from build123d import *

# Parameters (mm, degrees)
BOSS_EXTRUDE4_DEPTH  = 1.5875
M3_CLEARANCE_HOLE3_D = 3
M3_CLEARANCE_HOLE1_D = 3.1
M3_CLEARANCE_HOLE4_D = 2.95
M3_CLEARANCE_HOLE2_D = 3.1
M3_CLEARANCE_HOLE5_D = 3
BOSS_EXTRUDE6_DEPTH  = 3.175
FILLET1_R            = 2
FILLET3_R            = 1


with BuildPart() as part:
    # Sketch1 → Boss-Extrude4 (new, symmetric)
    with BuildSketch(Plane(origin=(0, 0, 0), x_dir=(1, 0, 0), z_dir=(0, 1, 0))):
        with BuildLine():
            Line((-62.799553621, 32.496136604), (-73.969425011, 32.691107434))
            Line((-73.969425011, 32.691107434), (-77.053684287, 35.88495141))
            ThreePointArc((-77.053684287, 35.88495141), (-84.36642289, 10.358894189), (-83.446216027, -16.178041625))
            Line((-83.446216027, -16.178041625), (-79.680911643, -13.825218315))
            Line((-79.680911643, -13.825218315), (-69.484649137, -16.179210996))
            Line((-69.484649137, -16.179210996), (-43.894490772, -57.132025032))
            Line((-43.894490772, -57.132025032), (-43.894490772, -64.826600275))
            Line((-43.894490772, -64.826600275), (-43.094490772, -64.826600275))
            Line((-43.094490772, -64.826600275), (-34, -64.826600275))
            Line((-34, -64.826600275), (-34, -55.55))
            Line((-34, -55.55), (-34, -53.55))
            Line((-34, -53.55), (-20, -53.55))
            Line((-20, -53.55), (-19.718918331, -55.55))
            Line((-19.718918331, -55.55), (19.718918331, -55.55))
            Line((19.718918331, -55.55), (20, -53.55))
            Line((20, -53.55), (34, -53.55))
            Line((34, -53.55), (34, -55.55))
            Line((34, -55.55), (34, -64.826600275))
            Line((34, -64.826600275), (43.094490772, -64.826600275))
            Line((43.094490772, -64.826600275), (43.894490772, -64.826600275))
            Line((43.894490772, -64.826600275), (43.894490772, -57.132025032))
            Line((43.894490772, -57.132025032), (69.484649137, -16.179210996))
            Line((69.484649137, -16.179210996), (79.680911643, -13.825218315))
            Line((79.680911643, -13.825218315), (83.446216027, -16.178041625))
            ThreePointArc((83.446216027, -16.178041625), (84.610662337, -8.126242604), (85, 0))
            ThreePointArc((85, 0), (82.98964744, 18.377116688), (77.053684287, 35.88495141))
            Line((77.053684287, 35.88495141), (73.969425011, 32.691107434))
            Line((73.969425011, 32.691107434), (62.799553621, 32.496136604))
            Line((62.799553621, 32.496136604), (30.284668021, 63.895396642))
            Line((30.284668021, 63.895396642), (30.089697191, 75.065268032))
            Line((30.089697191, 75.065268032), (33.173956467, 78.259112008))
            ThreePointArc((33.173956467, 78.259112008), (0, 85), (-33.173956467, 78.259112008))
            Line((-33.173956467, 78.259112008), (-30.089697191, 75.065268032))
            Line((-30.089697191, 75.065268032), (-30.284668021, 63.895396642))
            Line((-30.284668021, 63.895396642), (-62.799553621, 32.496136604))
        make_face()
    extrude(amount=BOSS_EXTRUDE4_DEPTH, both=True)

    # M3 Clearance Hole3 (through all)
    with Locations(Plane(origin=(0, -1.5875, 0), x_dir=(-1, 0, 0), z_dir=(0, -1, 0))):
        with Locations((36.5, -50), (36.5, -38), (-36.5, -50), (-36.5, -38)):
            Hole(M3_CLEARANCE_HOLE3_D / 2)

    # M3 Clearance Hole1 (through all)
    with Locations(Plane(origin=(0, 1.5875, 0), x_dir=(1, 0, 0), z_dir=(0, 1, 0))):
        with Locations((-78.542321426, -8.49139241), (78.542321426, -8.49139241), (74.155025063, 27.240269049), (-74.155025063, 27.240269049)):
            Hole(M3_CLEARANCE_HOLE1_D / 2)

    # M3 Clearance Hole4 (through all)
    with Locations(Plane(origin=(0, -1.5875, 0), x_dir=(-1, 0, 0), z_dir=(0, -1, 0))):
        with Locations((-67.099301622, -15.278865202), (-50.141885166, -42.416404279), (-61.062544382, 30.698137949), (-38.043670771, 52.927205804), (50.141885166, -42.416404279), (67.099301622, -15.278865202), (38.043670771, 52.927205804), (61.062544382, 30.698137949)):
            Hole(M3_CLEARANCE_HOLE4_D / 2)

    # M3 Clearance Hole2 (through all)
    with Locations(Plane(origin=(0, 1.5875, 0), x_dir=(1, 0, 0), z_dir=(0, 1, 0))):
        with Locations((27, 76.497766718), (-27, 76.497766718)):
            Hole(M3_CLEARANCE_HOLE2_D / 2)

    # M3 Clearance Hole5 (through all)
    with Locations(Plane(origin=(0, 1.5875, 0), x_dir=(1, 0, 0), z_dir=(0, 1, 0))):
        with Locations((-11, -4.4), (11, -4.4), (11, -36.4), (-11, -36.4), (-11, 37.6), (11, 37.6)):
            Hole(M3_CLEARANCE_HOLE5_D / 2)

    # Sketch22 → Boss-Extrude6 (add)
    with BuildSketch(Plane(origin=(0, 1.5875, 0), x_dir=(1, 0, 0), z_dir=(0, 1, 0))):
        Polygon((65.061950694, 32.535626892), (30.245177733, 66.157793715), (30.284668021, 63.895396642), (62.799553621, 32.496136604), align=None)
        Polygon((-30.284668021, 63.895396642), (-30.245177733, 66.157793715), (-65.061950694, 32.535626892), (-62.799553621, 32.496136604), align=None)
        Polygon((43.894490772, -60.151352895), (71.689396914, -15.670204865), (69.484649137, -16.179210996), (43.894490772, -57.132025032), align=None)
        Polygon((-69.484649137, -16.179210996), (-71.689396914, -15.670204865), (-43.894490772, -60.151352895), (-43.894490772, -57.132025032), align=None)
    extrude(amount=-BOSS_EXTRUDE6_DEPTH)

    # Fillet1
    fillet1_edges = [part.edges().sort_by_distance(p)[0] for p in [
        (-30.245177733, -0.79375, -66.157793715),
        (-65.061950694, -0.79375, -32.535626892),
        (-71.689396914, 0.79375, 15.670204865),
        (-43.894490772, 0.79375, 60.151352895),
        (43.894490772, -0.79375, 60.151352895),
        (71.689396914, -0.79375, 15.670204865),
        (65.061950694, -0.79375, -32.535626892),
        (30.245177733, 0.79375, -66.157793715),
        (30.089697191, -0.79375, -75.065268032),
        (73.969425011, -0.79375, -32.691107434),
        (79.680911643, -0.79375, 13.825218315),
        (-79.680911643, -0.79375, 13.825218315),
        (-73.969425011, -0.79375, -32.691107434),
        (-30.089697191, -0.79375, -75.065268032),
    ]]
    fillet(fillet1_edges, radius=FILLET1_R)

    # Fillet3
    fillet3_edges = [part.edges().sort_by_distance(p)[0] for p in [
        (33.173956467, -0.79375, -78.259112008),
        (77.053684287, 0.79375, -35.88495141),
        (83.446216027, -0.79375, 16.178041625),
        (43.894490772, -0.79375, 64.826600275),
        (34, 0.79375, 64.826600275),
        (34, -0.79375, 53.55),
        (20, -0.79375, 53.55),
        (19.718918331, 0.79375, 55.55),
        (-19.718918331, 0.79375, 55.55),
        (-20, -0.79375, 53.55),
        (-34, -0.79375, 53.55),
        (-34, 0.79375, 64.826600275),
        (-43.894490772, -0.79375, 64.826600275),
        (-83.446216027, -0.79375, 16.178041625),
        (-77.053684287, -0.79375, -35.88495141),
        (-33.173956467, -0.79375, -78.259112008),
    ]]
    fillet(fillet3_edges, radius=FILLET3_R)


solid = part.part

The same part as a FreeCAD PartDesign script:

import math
import FreeCAD as App
import Part
import Sketcher
Q = App.Units.Quantity


def edges_at(feature, points):
    """Names of the edges that pass closest to the given points."""
    edges = feature.Shape.Edges
    near = lambda p: min(range(len(edges)), key=lambda i: edges[i].distToShape(Part.Vertex(*p))[0])
    return sorted({f"Edge{near(p) + 1}" for p in points})

doc = App.newDocument("Part")
body = doc.addObject("PartDesign::Body", "Body")

sketch1 = body.newObject("Sketcher::SketchObject", "Sketch")
sketch1.AttachmentSupport = (doc.getObject("XZ_Plane"), [""])
sketch1.MapMode = "FlatFace"
sketch1.addGeometry([
    Part.LineSegment(App.Vector(-62.8, -32.5, 0), App.Vector(-74, -32.7, 0)),
    Part.LineSegment(App.Vector(-74, -32.7, 0), App.Vector(-77.1, -35.9, 0)),
    Part.ArcOfCircle(Part.Circle(App.Vector(0, 0, 0), App.Vector(0, 0, 1), 85), math.radians(169), math.radians(205)),
    Part.LineSegment(App.Vector(-83.4, 16.2, 0), App.Vector(-79.7, 13.8, 0)),
    Part.LineSegment(App.Vector(-79.7, 13.8, 0), App.Vector(-69.5, 16.2, 0)),
    Part.LineSegment(App.Vector(-69.5, 16.2, 0), App.Vector(-43.9, 57.1, 0)),
    Part.LineSegment(App.Vector(-43.9, 57.1, 0), App.Vector(-43.9, 64.8, 0)),
    Part.LineSegment(App.Vector(-43.9, 64.8, 0), App.Vector(-34, 64.8, 0)),
    Part.LineSegment(App.Vector(-34, 64.8, 0), App.Vector(-34, 53.5, 0)),
    Part.LineSegment(App.Vector(-34, 53.5, 0), App.Vector(-20, 53.5, 0)),
    Part.LineSegment(App.Vector(-20, 53.5, 0), App.Vector(-19.7, 55.5, 0)),
    Part.LineSegment(App.Vector(-19.7, 55.5, 0), App.Vector(19.7, 55.5, 0)),
    Part.LineSegment(App.Vector(19.7, 55.5, 0), App.Vector(20, 53.5, 0)),
    Part.LineSegment(App.Vector(20, 53.5, 0), App.Vector(34, 53.5, 0)),
    Part.LineSegment(App.Vector(34, 53.5, 0), App.Vector(34, 64.8, 0)),
    Part.LineSegment(App.Vector(34, 64.8, 0), App.Vector(43.9, 64.8, 0)),
    Part.LineSegment(App.Vector(43.9, 64.8, 0), App.Vector(43.9, 57.1, 0)),
    Part.LineSegment(App.Vector(43.9, 57.1, 0), App.Vector(69.5, 16.2, 0)),
    Part.LineSegment(App.Vector(69.5, 16.2, 0), App.Vector(79.7, 13.8, 0)),
    Part.LineSegment(App.Vector(79.7, 13.8, 0), App.Vector(83.4, 16.2, 0)),
    Part.ArcOfCircle(Part.Circle(App.Vector(0, 0, 0), App.Vector(0, 0, 1), 85), math.radians(0), math.radians(10.97)),
    Part.ArcOfCircle(Part.Circle(App.Vector(0, 0, 0), App.Vector(0, 0, 1), 85), math.radians(-25), math.radians(0)),
    Part.LineSegment(App.Vector(77.1, -35.9, 0), App.Vector(74, -32.7, 0)),
    Part.LineSegment(App.Vector(74, -32.7, 0), App.Vector(62.8, -32.5, 0)),
    Part.LineSegment(App.Vector(62.8, -32.5, 0), App.Vector(30.3, -63.9, 0)),
    Part.LineSegment(App.Vector(30.3, -63.9, 0), App.Vector(30.1, -75.1, 0)),
    Part.LineSegment(App.Vector(30.1, -75.1, 0), App.Vector(33.2, -78.3, 0)),
    Part.ArcOfCircle(Part.Circle(App.Vector(0, 0, 0), App.Vector(0, 0, 1), 85), math.radians(-113), math.radians(-67)),
    Part.LineSegment(App.Vector(-33.2, -78.3, 0), App.Vector(-30.1, -75.1, 0)),
    Part.LineSegment(App.Vector(-30.1, -75.1, 0), App.Vector(-30.3, -63.9, 0)),
    Part.LineSegment(App.Vector(-30.3, -63.9, 0), App.Vector(-62.8, -32.5, 0)),
], False)
sketch1.addConstraint([
    Sketcher.Constraint("Coincident", 0, 2, 1, 1),
    Sketcher.Constraint("Coincident", 1, 2, 2, 2),
    Sketcher.Constraint("Coincident", 2, 1, 3, 1),
    Sketcher.Constraint("Coincident", 3, 2, 4, 1),
    Sketcher.Constraint("Coincident", 4, 2, 5, 1),
    Sketcher.Constraint("Coincident", 5, 2, 6, 1),
    Sketcher.Constraint("Coincident", 6, 2, 7, 1),
    Sketcher.Constraint("Coincident", 7, 2, 8, 1),
    Sketcher.Constraint("Coincident", 8, 2, 9, 1),
    Sketcher.Constraint("Coincident", 9, 2, 10, 1),
    Sketcher.Constraint("Coincident", 10, 2, 11, 1),
    Sketcher.Constraint("Coincident", 11, 2, 12, 1),
    Sketcher.Constraint("Coincident", 12, 2, 13, 1),
    Sketcher.Constraint("Coincident", 13, 2, 14, 1),
    Sketcher.Constraint("Coincident", 14, 2, 15, 1),
    Sketcher.Constraint("Coincident", 15, 2, 16, 1),
    Sketcher.Constraint("Coincident", 16, 2, 17, 1),
    Sketcher.Constraint("Coincident", 17, 2, 18, 1),
    Sketcher.Constraint("Coincident", 18, 2, 19, 1),
    Sketcher.Constraint("Coincident", 19, 2, 20, 2),
    Sketcher.Constraint("Tangent", 20, 1, 21, 2),
    Sketcher.Constraint("Coincident", 21, 1, 22, 1),
    Sketcher.Constraint("Coincident", 22, 2, 23, 1),
    Sketcher.Constraint("Coincident", 23, 2, 24, 1),
    Sketcher.Constraint("Coincident", 24, 2, 25, 1),
    Sketcher.Constraint("Coincident", 25, 2, 26, 1),
    Sketcher.Constraint("Coincident", 26, 2, 27, 2),
    Sketcher.Constraint("Coincident", 27, 1, 28, 1),
    Sketcher.Constraint("Coincident", 28, 2, 29, 1),
    Sketcher.Constraint("Coincident", 29, 2, 30, 1),
    Sketcher.Constraint("Coincident", 30, 2, 0, 1),
    Sketcher.Constraint("Vertical", 6),
    Sketcher.Constraint("Horizontal", 7),
    Sketcher.Constraint("Vertical", 8),
    Sketcher.Constraint("Horizontal", 9),
    Sketcher.Constraint("Horizontal", 11),
    Sketcher.Constraint("Horizontal", 13),
    Sketcher.Constraint("Vertical", 14),
    Sketcher.Constraint("Horizontal", 15),
    Sketcher.Constraint("Vertical", 16),
    Sketcher.Constraint("Coincident", 2, 3, -1, 1),
    Sketcher.Constraint("Coincident", 20, 3, -1, 1),
    Sketcher.Constraint("Coincident", 27, 3, -1, 1),
    Sketcher.Constraint("Equal", 2, 20),
    Sketcher.Constraint("Equal", 20, 21),
    Sketcher.Constraint("Equal", 21, 27),
    Sketcher.Constraint("Symmetric", 9, 2, 12, 2, -2),
    Sketcher.Constraint("Symmetric", 7, 2, 14, 2, -2),
    Sketcher.Constraint("Symmetric", 5, 2, 16, 2, -2),
    Sketcher.Constraint("Symmetric", 4, 2, 17, 2, -2),
    Sketcher.Constraint("Symmetric", 3, 2, 18, 2, -2),
    Sketcher.Constraint("Symmetric", 0, 2, 22, 2, -2),
    Sketcher.Constraint("Symmetric", 25, 2, 28, 2, -2),
    Sketcher.Constraint("Symmetric", 24, 2, 29, 2, -2),
    Sketcher.Constraint("Symmetric", 23, 2, 30, 2, -2),
    Sketcher.Constraint("PointOnObject", 20, 1, -1),
    Sketcher.Constraint("Perpendicular", 3, 5),
    Sketcher.Constraint("Perpendicular", 17, 19),
    Sketcher.Constraint("Perpendicular", 22, 24),
    Sketcher.Constraint("Perpendicular", 23, 25),
    Sketcher.Constraint("Perpendicular", 24, 26),
    Sketcher.Constraint("Parallel", 1, 28),
    Sketcher.Constraint("Perpendicular", 28, 30),
    Sketcher.Constraint("Equal", 1, 3),
    Sketcher.Constraint("Equal", 10, 12),
    Sketcher.Constraint("Equal", 23, 25),
    Sketcher.Constraint("Equal", 22, 26),
    Sketcher.Constraint("Radius", 2, Q("85 mm")),
    Sketcher.Constraint("DistanceX", 9, 1, 9, 2, Q("14 mm")),
    Sketcher.Constraint("Angle", 0, Q("-179 deg")),
    Sketcher.Constraint("Angle", 1, Q("-134 deg")),
    Sketcher.Constraint("Angle", 3, Q("-32 deg")),
    Sketcher.Constraint("Angle", 4, Q("13 deg")),
    Sketcher.Constraint("Angle", 10, Q("82 deg")),
    Sketcher.Constraint("DistanceX", 7, 2, -1, 1, Q("34 mm")),
    Sketcher.Constraint("DistanceY", 9, 2, 10, 2, Q("2 mm")),
    Sketcher.Constraint("DistanceY", -1, 1, 8, 2, Q("53.55 mm")),
    Sketcher.Constraint("DistanceY", 8, 2, 8, 1, Q("11.2766 mm")),
    Sketcher.Constraint("DistanceX", 7, 1, 7, 2, Q("9.894491 mm")),
    Sketcher.Constraint("Distance", 24, Q("45.20101 mm")),
    Sketcher.Constraint("DistanceY", 6, 1, 6, 2, Q("7.694575 mm")),
    Sketcher.Constraint("DistanceY", 1, 2, -1, 1, Q("35.884951 mm")),
    Sketcher.Constraint("DistanceY", -1, 1, 2, 1, Q("16.178042 mm")),
    Sketcher.Constraint("DistanceX", 3, 2, -1, 1, Q("79.680912 mm")),
])
pad1 = body.newObject("PartDesign::Pad", "Pad")
pad1.Profile = sketch1
pad1.Length = 3.175
pad1.Midplane = True

sketch2 = body.newObject("Sketcher::SketchObject", "Sketch001")
sketch2.AttachmentSupport = (doc.getObject("XZ_Plane"), [""])
sketch2.MapMode = "FlatFace"
sketch2.AttachmentOffset = App.Placement(App.Vector(0, 0, 1.5875), App.Rotation())
sketch2.addGeometry([
    Part.Circle(App.Vector(-36.5, 50, 0), App.Vector(0, 0, 1), 1.5),
    Part.Circle(App.Vector(-36.5, 38, 0), App.Vector(0, 0, 1), 1.5),
    Part.Circle(App.Vector(36.5, 50, 0), App.Vector(0, 0, 1), 1.5),
    Part.Circle(App.Vector(36.5, 38, 0), App.Vector(0, 0, 1), 1.5),
], False)
sketch2.addConstraint([
    Sketcher.Constraint("Equal", 0, 1),
    Sketcher.Constraint("Equal", 1, 2),
    Sketcher.Constraint("Equal", 2, 3),
    Sketcher.Constraint("Symmetric", 0, 3, 2, 3, -2),
    Sketcher.Constraint("Symmetric", 1, 3, 3, 3, -2),
    Sketcher.Constraint("Vertical", 0, 3, 1, 3),
    Sketcher.Constraint("Diameter", 0, Q("3 mm")),
    Sketcher.Constraint("DistanceY", -1, 1, 0, 3, Q("50 mm")),
    Sketcher.Constraint("DistanceY", -1, 1, 1, 3, Q("38 mm")),
    Sketcher.Constraint("DistanceX", 0, 3, 2, 3, Q("73 mm")),
])
doc.recompute()
hole = body.newObject("PartDesign::Hole", "Hole")
hole.Profile = sketch2
hole.ThreadType = "None"
hole.Diameter = 3
hole.DepthType = "ThroughAll"

sketch3 = body.newObject("Sketcher::SketchObject", "Sketch002")
sketch3.AttachmentSupport = (doc.getObject("XZ_Plane"), [""])
sketch3.MapMode = "FlatFace"
sketch3.AttachmentOffset = App.Placement(App.Vector(0, 0, -1.5875), App.Rotation())
sketch3.addGeometry([
    Part.Circle(App.Vector(-78.5, 8.5, 0), App.Vector(0, 0, 1), 1.6),
    Part.Circle(App.Vector(78.5, 8.5, 0), App.Vector(0, 0, 1), 1.6),
    Part.Circle(App.Vector(74.2, -27.2, 0), App.Vector(0, 0, 1), 1.6),
    Part.Circle(App.Vector(-74.2, -27.2, 0), App.Vector(0, 0, 1), 1.6),
], False)
sketch3.addConstraint([
    Sketcher.Constraint("Equal", 0, 1),
    Sketcher.Constraint("Equal", 1, 2),
    Sketcher.Constraint("Equal", 2, 3),
    Sketcher.Constraint("Symmetric", 0, 3, 1, 3, -2),
    Sketcher.Constraint("Symmetric", 2, 3, 3, 3, -2),
    Sketcher.Constraint("Diameter", 0, Q("3.1 mm")),
    Sketcher.Constraint("DistanceX", 0, 3, -1, 1, Q("78.542321 mm")),
    Sketcher.Constraint("DistanceY", 2, 3, -1, 1, Q("27.240269 mm")),
    Sketcher.Constraint("DistanceY", 2, 3, 1, 3, Q("35.731661 mm")),
    Sketcher.Constraint("DistanceX", 3, 3, 2, 3, Q("148.31005 mm")),
])
doc.recompute()
hole2 = body.newObject("PartDesign::Hole", "Hole001")
hole2.Profile = sketch3
hole2.ThreadType = "None"
hole2.Diameter = 3.1
hole2.DepthType = "ThroughAll"
hole2.Reversed = True

sketch4 = body.newObject("Sketcher::SketchObject", "Sketch003")
sketch4.AttachmentSupport = (doc.getObject("XZ_Plane"), [""])
sketch4.MapMode = "FlatFace"
sketch4.AttachmentOffset = App.Placement(App.Vector(0, 0, 1.5875), App.Rotation())
sketch4.addGeometry([
    Part.Circle(App.Vector(67.1, 15.3, 0), App.Vector(0, 0, 1), 1.5),
    Part.Circle(App.Vector(50.1, 42.4, 0), App.Vector(0, 0, 1), 1.5),
    Part.Circle(App.Vector(61.1, -30.7, 0), App.Vector(0, 0, 1), 1.5),
    Part.Circle(App.Vector(38, -52.9, 0), App.Vector(0, 0, 1), 1.5),
    Part.Circle(App.Vector(-50.1, 42.4, 0), App.Vector(0, 0, 1), 1.5),
    Part.Circle(App.Vector(-67.1, 15.3, 0), App.Vector(0, 0, 1), 1.5),
    Part.Circle(App.Vector(-38, -52.9, 0), App.Vector(0, 0, 1), 1.5),
    Part.Circle(App.Vector(-61.1, -30.7, 0), App.Vector(0, 0, 1), 1.5),
], False)
sketch4.addConstraint([
    Sketcher.Constraint("Equal", 0, 1),
    Sketcher.Constraint("Equal", 1, 2),
    Sketcher.Constraint("Equal", 2, 3),
    Sketcher.Constraint("Equal", 3, 4),
    Sketcher.Constraint("Equal", 4, 5),
    Sketcher.Constraint("Equal", 5, 6),
    Sketcher.Constraint("Equal", 6, 7),
    Sketcher.Constraint("Symmetric", 1, 3, 4, 3, -2),
    Sketcher.Constraint("Symmetric", 0, 3, 5, 3, -2),
    Sketcher.Constraint("Symmetric", 3, 3, 6, 3, -2),
    Sketcher.Constraint("Symmetric", 2, 3, 7, 3, -2),
    Sketcher.Constraint("Diameter", 0, Q("2.95 mm")),
    Sketcher.Constraint("DistanceX", -1, 1, 0, 3, Q("67.099302 mm")),
    Sketcher.Constraint("DistanceX", -1, 1, 3, 3, Q("38.043671 mm")),
    Sketcher.Constraint("DistanceY", 0, 3, 1, 3, Q("27.137539 mm")),
    Sketcher.Constraint("DistanceX", 1, 3, 2, 3, Q("10.920659 mm")),
    Sketcher.Constraint("DistanceY", 3, 3, 0, 3, Q("68.206071 mm")),
    Sketcher.Constraint("DistanceX", 4, 3, 1, 3, Q("100.28377 mm")),
    Sketcher.Constraint("DistanceY", -1, 1, 0, 3, Q("15.278865 mm")),
    Sketcher.Constraint("DistanceY", 2, 3, -1, 1, Q("30.698138 mm")),
])
doc.recompute()
hole3 = body.newObject("PartDesign::Hole", "Hole002")
hole3.Profile = sketch4
hole3.ThreadType = "None"
hole3.Diameter = 2.95
hole3.DepthType = "ThroughAll"

sketch5 = body.newObject("Sketcher::SketchObject", "Sketch004")
sketch5.AttachmentSupport = (doc.getObject("XZ_Plane"), [""])
sketch5.MapMode = "FlatFace"
sketch5.AttachmentOffset = App.Placement(App.Vector(0, 0, -1.5875), App.Rotation())
sketch5.addGeometry([
    Part.Circle(App.Vector(27, -76.5, 0), App.Vector(0, 0, 1), 1.6),
    Part.Circle(App.Vector(-27, -76.5, 0), App.Vector(0, 0, 1), 1.6),
], False)
sketch5.addConstraint([
    Sketcher.Constraint("Equal", 0, 1),
    Sketcher.Constraint("Symmetric", 0, 3, 1, 3, -2),
    Sketcher.Constraint("Diameter", 0, Q("3.1 mm")),
    Sketcher.Constraint("DistanceX", -1, 1, 0, 3, Q("27 mm")),
    Sketcher.Constraint("DistanceY", 0, 3, -1, 1, Q("76.497767 mm")),
])
doc.recompute()
hole4 = body.newObject("PartDesign::Hole", "Hole003")
hole4.Profile = sketch5
hole4.ThreadType = "None"
hole4.Diameter = 3.1
hole4.DepthType = "ThroughAll"
hole4.Reversed = True

sketch6 = body.newObject("Sketcher::SketchObject", "Sketch005")
sketch6.AttachmentSupport = (doc.getObject("XZ_Plane"), [""])
sketch6.MapMode = "FlatFace"
sketch6.AttachmentOffset = App.Placement(App.Vector(0, 0, -1.5875), App.Rotation())
sketch6.addGeometry([
    Part.Circle(App.Vector(-11, 4.4, 0), App.Vector(0, 0, 1), 1.5),
    Part.Circle(App.Vector(11, 4.4, 0), App.Vector(0, 0, 1), 1.5),
    Part.Circle(App.Vector(11, 36.4, 0), App.Vector(0, 0, 1), 1.5),
    Part.Circle(App.Vector(-11, 36.4, 0), App.Vector(0, 0, 1), 1.5),
    Part.Circle(App.Vector(-11, -37.6, 0), App.Vector(0, 0, 1), 1.5),
    Part.Circle(App.Vector(11, -37.6, 0), App.Vector(0, 0, 1), 1.5),
], False)
sketch6.addConstraint([
    Sketcher.Constraint("Equal", 0, 1),
    Sketcher.Constraint("Equal", 1, 2),
    Sketcher.Constraint("Equal", 2, 3),
    Sketcher.Constraint("Equal", 3, 4),
    Sketcher.Constraint("Equal", 4, 5),
    Sketcher.Constraint("Symmetric", 0, 3, 1, 3, -2),
    Sketcher.Constraint("Symmetric", 2, 3, 3, 3, -2),
    Sketcher.Constraint("Symmetric", 4, 3, 5, 3, -2),
    Sketcher.Constraint("Vertical", 1, 3, 2, 3),
    Sketcher.Constraint("Vertical", 3, 3, 4, 3),
    Sketcher.Constraint("Diameter", 0, Q("3 mm")),
    Sketcher.Constraint("DistanceX", 0, 3, -1, 1, Q("11 mm")),
    Sketcher.Constraint("DistanceY", 1, 3, 2, 3, Q("32 mm")),
    Sketcher.Constraint("DistanceY", 4, 3, 0, 3, Q("42 mm")),
    Sketcher.Constraint("DistanceY", -1, 1, 0, 3, Q("4.4 mm")),
])
doc.recompute()
hole5 = body.newObject("PartDesign::Hole", "Hole004")
hole5.Profile = sketch6
hole5.ThreadType = "None"
hole5.Diameter = 3
hole5.DepthType = "ThroughAll"
hole5.Reversed = True

sketch7 = body.newObject("Sketcher::SketchObject", "Sketch006")
sketch7.AttachmentSupport = (doc.getObject("XZ_Plane"), [""])
sketch7.MapMode = "FlatFace"
sketch7.AttachmentOffset = App.Placement(App.Vector(0, 0, -1.5875), App.Rotation())
sketch7.addGeometry([
    Part.LineSegment(App.Vector(65.1, -32.5, 0), App.Vector(30.2, -66.2, 0)),
    Part.LineSegment(App.Vector(30.2, -66.2, 0), App.Vector(30.3, -63.9, 0)),
    Part.LineSegment(App.Vector(30.3, -63.9, 0), App.Vector(62.8, -32.5, 0)),
    Part.LineSegment(App.Vector(62.8, -32.5, 0), App.Vector(65.1, -32.5, 0)),
    Part.LineSegment(App.Vector(-30.3, -63.9, 0), App.Vector(-30.2, -66.2, 0)),
    Part.LineSegment(App.Vector(-30.2, -66.2, 0), App.Vector(-65.1, -32.5, 0)),
    Part.LineSegment(App.Vector(-65.1, -32.5, 0), App.Vector(-62.8, -32.5, 0)),
    Part.LineSegment(App.Vector(-62.8, -32.5, 0), App.Vector(-30.3, -63.9, 0)),
    Part.LineSegment(App.Vector(43.9, 60.2, 0), App.Vector(71.7, 15.7, 0)),
    Part.LineSegment(App.Vector(71.7, 15.7, 0), App.Vector(69.5, 16.2, 0)),
    Part.LineSegment(App.Vector(69.5, 16.2, 0), App.Vector(43.9, 57.1, 0)),
    Part.LineSegment(App.Vector(43.9, 57.1, 0), App.Vector(43.9, 60.2, 0)),
    Part.LineSegment(App.Vector(-69.5, 16.2, 0), App.Vector(-71.7, 15.7, 0)),
    Part.LineSegment(App.Vector(-71.7, 15.7, 0), App.Vector(-43.9, 60.2, 0)),
    Part.LineSegment(App.Vector(-43.9, 60.2, 0), App.Vector(-43.9, 57.1, 0)),
    Part.LineSegment(App.Vector(-43.9, 57.1, 0), App.Vector(-69.5, 16.2, 0)),
], False)
sketch7.addConstraint([
    Sketcher.Constraint("Coincident", 0, 2, 1, 1),
    Sketcher.Constraint("Coincident", 1, 2, 2, 1),
    Sketcher.Constraint("Coincident", 2, 2, 3, 1),
    Sketcher.Constraint("Coincident", 3, 2, 0, 1),
    Sketcher.Constraint("Coincident", 4, 2, 5, 1),
    Sketcher.Constraint("Coincident", 5, 2, 6, 1),
    Sketcher.Constraint("Coincident", 6, 2, 7, 1),
    Sketcher.Constraint("Coincident", 7, 2, 4, 1),
    Sketcher.Constraint("Coincident", 8, 2, 9, 1),
    Sketcher.Constraint("Coincident", 9, 2, 10, 1),
    Sketcher.Constraint("Coincident", 10, 2, 11, 1),
    Sketcher.Constraint("Coincident", 11, 2, 8, 1),
    Sketcher.Constraint("Coincident", 12, 2, 13, 1),
    Sketcher.Constraint("Coincident", 13, 2, 14, 1),
    Sketcher.Constraint("Coincident", 14, 2, 15, 1),
    Sketcher.Constraint("Coincident", 15, 2, 12, 1),
    Sketcher.Constraint("Vertical", 11),
    Sketcher.Constraint("Vertical", 14),
    Sketcher.Constraint("Symmetric", 0, 2, 4, 2, -2),
    Sketcher.Constraint("Symmetric", 3, 2, 5, 2, -2),
    Sketcher.Constraint("Symmetric", 2, 2, 6, 2, -2),
    Sketcher.Constraint("Symmetric", 1, 2, 7, 2, -2),
    Sketcher.Constraint("Symmetric", 8, 2, 12, 2, -2),
    Sketcher.Constraint("Symmetric", 11, 2, 13, 2, -2),
    Sketcher.Constraint("Symmetric", 9, 2, 15, 2, -2),
    Sketcher.Constraint("Parallel", 0, 2),
    Sketcher.Constraint("Perpendicular", 1, 3),
    Sketcher.Constraint("Parallel", 8, 10),
    Sketcher.Constraint("Parallel", 13, 15),
    Sketcher.Constraint("Equal", 1, 3),
    Sketcher.Constraint("Equal", 6, 9),
    Sketcher.Constraint("Angle", 0, Q("-136 deg")),
    Sketcher.Constraint("Angle", 8, Q("-58 deg")),
    Sketcher.Constraint("Angle", 9, Q("167 deg")),
    Sketcher.Constraint("DistanceY", 0, 2, 8, 2, Q("81.827999 mm")),
    Sketcher.Constraint("DistanceX", 5, 2, 3, 2, Q("130.123901 mm")),
    Sketcher.Constraint("DistanceY", 1, 2, 8, 2, Q("79.565602 mm")),
    Sketcher.Constraint("DistanceX", 3, 2, 9, 2, Q("4.422698 mm")),
    Sketcher.Constraint("Distance", 0, Q("48.40101 mm")),
    Sketcher.Constraint("Distance", 8, Q("52.451209 mm")),
    Sketcher.Constraint("DistanceY", -1, 1, 9, 2, Q("16.179211 mm")),
])
pad2 = body.newObject("PartDesign::Pad", "Pad001")
pad2.Profile = sketch7
pad2.Length = 3.175
doc.recompute()

fillet = body.newObject("PartDesign::Fillet", "Fillet")
fillet.Base = (pad2, edges_at(pad2, [
    (-30.245, 0, -66.158),
    (-65.062, 0, -32.536),
    (-71.689, 0, 15.67),
    (-43.894, 0, 60.151),
    (43.894, 0, 60.151),
    (71.689, 0, 15.67),
    (65.062, 0, -32.536),
    (30.245, 0, -66.158),
    (30.09, 0, -75.065),
    (73.969, 0, -32.691),
    (79.681, 0, 13.825),
    (-79.681, 0, 13.825),
    (-73.969, 0, -32.691),
    (-30.09, 0, -75.065),
]))
fillet.Radius = 2
doc.recompute()

fillet2 = body.newObject("PartDesign::Fillet", "Fillet001")
fillet2.Base = (fillet, edges_at(fillet, [
    (33.174, 0, -78.259),
    (77.054, 0, -35.885),
    (83.446, 0, 16.178),
    (43.894, 0, 64.827),
    (34, 0, 64.827),
    (34, 0, 53.55),
    (20, 0, 53.55),
    (19.719, 0, 55.55),
    (-19.719, 0, 55.55),
    (-20, 0, 53.55),
    (-34, 0, 53.55),
    (-34, 0, 64.827),
    (-43.894, 0, 64.827),
    (-83.446, 0, 16.178),
    (-77.054, 0, -35.885),
    (-33.174, 0, -78.259),
]))
fillet2.Radius = 1

doc.recompute()
